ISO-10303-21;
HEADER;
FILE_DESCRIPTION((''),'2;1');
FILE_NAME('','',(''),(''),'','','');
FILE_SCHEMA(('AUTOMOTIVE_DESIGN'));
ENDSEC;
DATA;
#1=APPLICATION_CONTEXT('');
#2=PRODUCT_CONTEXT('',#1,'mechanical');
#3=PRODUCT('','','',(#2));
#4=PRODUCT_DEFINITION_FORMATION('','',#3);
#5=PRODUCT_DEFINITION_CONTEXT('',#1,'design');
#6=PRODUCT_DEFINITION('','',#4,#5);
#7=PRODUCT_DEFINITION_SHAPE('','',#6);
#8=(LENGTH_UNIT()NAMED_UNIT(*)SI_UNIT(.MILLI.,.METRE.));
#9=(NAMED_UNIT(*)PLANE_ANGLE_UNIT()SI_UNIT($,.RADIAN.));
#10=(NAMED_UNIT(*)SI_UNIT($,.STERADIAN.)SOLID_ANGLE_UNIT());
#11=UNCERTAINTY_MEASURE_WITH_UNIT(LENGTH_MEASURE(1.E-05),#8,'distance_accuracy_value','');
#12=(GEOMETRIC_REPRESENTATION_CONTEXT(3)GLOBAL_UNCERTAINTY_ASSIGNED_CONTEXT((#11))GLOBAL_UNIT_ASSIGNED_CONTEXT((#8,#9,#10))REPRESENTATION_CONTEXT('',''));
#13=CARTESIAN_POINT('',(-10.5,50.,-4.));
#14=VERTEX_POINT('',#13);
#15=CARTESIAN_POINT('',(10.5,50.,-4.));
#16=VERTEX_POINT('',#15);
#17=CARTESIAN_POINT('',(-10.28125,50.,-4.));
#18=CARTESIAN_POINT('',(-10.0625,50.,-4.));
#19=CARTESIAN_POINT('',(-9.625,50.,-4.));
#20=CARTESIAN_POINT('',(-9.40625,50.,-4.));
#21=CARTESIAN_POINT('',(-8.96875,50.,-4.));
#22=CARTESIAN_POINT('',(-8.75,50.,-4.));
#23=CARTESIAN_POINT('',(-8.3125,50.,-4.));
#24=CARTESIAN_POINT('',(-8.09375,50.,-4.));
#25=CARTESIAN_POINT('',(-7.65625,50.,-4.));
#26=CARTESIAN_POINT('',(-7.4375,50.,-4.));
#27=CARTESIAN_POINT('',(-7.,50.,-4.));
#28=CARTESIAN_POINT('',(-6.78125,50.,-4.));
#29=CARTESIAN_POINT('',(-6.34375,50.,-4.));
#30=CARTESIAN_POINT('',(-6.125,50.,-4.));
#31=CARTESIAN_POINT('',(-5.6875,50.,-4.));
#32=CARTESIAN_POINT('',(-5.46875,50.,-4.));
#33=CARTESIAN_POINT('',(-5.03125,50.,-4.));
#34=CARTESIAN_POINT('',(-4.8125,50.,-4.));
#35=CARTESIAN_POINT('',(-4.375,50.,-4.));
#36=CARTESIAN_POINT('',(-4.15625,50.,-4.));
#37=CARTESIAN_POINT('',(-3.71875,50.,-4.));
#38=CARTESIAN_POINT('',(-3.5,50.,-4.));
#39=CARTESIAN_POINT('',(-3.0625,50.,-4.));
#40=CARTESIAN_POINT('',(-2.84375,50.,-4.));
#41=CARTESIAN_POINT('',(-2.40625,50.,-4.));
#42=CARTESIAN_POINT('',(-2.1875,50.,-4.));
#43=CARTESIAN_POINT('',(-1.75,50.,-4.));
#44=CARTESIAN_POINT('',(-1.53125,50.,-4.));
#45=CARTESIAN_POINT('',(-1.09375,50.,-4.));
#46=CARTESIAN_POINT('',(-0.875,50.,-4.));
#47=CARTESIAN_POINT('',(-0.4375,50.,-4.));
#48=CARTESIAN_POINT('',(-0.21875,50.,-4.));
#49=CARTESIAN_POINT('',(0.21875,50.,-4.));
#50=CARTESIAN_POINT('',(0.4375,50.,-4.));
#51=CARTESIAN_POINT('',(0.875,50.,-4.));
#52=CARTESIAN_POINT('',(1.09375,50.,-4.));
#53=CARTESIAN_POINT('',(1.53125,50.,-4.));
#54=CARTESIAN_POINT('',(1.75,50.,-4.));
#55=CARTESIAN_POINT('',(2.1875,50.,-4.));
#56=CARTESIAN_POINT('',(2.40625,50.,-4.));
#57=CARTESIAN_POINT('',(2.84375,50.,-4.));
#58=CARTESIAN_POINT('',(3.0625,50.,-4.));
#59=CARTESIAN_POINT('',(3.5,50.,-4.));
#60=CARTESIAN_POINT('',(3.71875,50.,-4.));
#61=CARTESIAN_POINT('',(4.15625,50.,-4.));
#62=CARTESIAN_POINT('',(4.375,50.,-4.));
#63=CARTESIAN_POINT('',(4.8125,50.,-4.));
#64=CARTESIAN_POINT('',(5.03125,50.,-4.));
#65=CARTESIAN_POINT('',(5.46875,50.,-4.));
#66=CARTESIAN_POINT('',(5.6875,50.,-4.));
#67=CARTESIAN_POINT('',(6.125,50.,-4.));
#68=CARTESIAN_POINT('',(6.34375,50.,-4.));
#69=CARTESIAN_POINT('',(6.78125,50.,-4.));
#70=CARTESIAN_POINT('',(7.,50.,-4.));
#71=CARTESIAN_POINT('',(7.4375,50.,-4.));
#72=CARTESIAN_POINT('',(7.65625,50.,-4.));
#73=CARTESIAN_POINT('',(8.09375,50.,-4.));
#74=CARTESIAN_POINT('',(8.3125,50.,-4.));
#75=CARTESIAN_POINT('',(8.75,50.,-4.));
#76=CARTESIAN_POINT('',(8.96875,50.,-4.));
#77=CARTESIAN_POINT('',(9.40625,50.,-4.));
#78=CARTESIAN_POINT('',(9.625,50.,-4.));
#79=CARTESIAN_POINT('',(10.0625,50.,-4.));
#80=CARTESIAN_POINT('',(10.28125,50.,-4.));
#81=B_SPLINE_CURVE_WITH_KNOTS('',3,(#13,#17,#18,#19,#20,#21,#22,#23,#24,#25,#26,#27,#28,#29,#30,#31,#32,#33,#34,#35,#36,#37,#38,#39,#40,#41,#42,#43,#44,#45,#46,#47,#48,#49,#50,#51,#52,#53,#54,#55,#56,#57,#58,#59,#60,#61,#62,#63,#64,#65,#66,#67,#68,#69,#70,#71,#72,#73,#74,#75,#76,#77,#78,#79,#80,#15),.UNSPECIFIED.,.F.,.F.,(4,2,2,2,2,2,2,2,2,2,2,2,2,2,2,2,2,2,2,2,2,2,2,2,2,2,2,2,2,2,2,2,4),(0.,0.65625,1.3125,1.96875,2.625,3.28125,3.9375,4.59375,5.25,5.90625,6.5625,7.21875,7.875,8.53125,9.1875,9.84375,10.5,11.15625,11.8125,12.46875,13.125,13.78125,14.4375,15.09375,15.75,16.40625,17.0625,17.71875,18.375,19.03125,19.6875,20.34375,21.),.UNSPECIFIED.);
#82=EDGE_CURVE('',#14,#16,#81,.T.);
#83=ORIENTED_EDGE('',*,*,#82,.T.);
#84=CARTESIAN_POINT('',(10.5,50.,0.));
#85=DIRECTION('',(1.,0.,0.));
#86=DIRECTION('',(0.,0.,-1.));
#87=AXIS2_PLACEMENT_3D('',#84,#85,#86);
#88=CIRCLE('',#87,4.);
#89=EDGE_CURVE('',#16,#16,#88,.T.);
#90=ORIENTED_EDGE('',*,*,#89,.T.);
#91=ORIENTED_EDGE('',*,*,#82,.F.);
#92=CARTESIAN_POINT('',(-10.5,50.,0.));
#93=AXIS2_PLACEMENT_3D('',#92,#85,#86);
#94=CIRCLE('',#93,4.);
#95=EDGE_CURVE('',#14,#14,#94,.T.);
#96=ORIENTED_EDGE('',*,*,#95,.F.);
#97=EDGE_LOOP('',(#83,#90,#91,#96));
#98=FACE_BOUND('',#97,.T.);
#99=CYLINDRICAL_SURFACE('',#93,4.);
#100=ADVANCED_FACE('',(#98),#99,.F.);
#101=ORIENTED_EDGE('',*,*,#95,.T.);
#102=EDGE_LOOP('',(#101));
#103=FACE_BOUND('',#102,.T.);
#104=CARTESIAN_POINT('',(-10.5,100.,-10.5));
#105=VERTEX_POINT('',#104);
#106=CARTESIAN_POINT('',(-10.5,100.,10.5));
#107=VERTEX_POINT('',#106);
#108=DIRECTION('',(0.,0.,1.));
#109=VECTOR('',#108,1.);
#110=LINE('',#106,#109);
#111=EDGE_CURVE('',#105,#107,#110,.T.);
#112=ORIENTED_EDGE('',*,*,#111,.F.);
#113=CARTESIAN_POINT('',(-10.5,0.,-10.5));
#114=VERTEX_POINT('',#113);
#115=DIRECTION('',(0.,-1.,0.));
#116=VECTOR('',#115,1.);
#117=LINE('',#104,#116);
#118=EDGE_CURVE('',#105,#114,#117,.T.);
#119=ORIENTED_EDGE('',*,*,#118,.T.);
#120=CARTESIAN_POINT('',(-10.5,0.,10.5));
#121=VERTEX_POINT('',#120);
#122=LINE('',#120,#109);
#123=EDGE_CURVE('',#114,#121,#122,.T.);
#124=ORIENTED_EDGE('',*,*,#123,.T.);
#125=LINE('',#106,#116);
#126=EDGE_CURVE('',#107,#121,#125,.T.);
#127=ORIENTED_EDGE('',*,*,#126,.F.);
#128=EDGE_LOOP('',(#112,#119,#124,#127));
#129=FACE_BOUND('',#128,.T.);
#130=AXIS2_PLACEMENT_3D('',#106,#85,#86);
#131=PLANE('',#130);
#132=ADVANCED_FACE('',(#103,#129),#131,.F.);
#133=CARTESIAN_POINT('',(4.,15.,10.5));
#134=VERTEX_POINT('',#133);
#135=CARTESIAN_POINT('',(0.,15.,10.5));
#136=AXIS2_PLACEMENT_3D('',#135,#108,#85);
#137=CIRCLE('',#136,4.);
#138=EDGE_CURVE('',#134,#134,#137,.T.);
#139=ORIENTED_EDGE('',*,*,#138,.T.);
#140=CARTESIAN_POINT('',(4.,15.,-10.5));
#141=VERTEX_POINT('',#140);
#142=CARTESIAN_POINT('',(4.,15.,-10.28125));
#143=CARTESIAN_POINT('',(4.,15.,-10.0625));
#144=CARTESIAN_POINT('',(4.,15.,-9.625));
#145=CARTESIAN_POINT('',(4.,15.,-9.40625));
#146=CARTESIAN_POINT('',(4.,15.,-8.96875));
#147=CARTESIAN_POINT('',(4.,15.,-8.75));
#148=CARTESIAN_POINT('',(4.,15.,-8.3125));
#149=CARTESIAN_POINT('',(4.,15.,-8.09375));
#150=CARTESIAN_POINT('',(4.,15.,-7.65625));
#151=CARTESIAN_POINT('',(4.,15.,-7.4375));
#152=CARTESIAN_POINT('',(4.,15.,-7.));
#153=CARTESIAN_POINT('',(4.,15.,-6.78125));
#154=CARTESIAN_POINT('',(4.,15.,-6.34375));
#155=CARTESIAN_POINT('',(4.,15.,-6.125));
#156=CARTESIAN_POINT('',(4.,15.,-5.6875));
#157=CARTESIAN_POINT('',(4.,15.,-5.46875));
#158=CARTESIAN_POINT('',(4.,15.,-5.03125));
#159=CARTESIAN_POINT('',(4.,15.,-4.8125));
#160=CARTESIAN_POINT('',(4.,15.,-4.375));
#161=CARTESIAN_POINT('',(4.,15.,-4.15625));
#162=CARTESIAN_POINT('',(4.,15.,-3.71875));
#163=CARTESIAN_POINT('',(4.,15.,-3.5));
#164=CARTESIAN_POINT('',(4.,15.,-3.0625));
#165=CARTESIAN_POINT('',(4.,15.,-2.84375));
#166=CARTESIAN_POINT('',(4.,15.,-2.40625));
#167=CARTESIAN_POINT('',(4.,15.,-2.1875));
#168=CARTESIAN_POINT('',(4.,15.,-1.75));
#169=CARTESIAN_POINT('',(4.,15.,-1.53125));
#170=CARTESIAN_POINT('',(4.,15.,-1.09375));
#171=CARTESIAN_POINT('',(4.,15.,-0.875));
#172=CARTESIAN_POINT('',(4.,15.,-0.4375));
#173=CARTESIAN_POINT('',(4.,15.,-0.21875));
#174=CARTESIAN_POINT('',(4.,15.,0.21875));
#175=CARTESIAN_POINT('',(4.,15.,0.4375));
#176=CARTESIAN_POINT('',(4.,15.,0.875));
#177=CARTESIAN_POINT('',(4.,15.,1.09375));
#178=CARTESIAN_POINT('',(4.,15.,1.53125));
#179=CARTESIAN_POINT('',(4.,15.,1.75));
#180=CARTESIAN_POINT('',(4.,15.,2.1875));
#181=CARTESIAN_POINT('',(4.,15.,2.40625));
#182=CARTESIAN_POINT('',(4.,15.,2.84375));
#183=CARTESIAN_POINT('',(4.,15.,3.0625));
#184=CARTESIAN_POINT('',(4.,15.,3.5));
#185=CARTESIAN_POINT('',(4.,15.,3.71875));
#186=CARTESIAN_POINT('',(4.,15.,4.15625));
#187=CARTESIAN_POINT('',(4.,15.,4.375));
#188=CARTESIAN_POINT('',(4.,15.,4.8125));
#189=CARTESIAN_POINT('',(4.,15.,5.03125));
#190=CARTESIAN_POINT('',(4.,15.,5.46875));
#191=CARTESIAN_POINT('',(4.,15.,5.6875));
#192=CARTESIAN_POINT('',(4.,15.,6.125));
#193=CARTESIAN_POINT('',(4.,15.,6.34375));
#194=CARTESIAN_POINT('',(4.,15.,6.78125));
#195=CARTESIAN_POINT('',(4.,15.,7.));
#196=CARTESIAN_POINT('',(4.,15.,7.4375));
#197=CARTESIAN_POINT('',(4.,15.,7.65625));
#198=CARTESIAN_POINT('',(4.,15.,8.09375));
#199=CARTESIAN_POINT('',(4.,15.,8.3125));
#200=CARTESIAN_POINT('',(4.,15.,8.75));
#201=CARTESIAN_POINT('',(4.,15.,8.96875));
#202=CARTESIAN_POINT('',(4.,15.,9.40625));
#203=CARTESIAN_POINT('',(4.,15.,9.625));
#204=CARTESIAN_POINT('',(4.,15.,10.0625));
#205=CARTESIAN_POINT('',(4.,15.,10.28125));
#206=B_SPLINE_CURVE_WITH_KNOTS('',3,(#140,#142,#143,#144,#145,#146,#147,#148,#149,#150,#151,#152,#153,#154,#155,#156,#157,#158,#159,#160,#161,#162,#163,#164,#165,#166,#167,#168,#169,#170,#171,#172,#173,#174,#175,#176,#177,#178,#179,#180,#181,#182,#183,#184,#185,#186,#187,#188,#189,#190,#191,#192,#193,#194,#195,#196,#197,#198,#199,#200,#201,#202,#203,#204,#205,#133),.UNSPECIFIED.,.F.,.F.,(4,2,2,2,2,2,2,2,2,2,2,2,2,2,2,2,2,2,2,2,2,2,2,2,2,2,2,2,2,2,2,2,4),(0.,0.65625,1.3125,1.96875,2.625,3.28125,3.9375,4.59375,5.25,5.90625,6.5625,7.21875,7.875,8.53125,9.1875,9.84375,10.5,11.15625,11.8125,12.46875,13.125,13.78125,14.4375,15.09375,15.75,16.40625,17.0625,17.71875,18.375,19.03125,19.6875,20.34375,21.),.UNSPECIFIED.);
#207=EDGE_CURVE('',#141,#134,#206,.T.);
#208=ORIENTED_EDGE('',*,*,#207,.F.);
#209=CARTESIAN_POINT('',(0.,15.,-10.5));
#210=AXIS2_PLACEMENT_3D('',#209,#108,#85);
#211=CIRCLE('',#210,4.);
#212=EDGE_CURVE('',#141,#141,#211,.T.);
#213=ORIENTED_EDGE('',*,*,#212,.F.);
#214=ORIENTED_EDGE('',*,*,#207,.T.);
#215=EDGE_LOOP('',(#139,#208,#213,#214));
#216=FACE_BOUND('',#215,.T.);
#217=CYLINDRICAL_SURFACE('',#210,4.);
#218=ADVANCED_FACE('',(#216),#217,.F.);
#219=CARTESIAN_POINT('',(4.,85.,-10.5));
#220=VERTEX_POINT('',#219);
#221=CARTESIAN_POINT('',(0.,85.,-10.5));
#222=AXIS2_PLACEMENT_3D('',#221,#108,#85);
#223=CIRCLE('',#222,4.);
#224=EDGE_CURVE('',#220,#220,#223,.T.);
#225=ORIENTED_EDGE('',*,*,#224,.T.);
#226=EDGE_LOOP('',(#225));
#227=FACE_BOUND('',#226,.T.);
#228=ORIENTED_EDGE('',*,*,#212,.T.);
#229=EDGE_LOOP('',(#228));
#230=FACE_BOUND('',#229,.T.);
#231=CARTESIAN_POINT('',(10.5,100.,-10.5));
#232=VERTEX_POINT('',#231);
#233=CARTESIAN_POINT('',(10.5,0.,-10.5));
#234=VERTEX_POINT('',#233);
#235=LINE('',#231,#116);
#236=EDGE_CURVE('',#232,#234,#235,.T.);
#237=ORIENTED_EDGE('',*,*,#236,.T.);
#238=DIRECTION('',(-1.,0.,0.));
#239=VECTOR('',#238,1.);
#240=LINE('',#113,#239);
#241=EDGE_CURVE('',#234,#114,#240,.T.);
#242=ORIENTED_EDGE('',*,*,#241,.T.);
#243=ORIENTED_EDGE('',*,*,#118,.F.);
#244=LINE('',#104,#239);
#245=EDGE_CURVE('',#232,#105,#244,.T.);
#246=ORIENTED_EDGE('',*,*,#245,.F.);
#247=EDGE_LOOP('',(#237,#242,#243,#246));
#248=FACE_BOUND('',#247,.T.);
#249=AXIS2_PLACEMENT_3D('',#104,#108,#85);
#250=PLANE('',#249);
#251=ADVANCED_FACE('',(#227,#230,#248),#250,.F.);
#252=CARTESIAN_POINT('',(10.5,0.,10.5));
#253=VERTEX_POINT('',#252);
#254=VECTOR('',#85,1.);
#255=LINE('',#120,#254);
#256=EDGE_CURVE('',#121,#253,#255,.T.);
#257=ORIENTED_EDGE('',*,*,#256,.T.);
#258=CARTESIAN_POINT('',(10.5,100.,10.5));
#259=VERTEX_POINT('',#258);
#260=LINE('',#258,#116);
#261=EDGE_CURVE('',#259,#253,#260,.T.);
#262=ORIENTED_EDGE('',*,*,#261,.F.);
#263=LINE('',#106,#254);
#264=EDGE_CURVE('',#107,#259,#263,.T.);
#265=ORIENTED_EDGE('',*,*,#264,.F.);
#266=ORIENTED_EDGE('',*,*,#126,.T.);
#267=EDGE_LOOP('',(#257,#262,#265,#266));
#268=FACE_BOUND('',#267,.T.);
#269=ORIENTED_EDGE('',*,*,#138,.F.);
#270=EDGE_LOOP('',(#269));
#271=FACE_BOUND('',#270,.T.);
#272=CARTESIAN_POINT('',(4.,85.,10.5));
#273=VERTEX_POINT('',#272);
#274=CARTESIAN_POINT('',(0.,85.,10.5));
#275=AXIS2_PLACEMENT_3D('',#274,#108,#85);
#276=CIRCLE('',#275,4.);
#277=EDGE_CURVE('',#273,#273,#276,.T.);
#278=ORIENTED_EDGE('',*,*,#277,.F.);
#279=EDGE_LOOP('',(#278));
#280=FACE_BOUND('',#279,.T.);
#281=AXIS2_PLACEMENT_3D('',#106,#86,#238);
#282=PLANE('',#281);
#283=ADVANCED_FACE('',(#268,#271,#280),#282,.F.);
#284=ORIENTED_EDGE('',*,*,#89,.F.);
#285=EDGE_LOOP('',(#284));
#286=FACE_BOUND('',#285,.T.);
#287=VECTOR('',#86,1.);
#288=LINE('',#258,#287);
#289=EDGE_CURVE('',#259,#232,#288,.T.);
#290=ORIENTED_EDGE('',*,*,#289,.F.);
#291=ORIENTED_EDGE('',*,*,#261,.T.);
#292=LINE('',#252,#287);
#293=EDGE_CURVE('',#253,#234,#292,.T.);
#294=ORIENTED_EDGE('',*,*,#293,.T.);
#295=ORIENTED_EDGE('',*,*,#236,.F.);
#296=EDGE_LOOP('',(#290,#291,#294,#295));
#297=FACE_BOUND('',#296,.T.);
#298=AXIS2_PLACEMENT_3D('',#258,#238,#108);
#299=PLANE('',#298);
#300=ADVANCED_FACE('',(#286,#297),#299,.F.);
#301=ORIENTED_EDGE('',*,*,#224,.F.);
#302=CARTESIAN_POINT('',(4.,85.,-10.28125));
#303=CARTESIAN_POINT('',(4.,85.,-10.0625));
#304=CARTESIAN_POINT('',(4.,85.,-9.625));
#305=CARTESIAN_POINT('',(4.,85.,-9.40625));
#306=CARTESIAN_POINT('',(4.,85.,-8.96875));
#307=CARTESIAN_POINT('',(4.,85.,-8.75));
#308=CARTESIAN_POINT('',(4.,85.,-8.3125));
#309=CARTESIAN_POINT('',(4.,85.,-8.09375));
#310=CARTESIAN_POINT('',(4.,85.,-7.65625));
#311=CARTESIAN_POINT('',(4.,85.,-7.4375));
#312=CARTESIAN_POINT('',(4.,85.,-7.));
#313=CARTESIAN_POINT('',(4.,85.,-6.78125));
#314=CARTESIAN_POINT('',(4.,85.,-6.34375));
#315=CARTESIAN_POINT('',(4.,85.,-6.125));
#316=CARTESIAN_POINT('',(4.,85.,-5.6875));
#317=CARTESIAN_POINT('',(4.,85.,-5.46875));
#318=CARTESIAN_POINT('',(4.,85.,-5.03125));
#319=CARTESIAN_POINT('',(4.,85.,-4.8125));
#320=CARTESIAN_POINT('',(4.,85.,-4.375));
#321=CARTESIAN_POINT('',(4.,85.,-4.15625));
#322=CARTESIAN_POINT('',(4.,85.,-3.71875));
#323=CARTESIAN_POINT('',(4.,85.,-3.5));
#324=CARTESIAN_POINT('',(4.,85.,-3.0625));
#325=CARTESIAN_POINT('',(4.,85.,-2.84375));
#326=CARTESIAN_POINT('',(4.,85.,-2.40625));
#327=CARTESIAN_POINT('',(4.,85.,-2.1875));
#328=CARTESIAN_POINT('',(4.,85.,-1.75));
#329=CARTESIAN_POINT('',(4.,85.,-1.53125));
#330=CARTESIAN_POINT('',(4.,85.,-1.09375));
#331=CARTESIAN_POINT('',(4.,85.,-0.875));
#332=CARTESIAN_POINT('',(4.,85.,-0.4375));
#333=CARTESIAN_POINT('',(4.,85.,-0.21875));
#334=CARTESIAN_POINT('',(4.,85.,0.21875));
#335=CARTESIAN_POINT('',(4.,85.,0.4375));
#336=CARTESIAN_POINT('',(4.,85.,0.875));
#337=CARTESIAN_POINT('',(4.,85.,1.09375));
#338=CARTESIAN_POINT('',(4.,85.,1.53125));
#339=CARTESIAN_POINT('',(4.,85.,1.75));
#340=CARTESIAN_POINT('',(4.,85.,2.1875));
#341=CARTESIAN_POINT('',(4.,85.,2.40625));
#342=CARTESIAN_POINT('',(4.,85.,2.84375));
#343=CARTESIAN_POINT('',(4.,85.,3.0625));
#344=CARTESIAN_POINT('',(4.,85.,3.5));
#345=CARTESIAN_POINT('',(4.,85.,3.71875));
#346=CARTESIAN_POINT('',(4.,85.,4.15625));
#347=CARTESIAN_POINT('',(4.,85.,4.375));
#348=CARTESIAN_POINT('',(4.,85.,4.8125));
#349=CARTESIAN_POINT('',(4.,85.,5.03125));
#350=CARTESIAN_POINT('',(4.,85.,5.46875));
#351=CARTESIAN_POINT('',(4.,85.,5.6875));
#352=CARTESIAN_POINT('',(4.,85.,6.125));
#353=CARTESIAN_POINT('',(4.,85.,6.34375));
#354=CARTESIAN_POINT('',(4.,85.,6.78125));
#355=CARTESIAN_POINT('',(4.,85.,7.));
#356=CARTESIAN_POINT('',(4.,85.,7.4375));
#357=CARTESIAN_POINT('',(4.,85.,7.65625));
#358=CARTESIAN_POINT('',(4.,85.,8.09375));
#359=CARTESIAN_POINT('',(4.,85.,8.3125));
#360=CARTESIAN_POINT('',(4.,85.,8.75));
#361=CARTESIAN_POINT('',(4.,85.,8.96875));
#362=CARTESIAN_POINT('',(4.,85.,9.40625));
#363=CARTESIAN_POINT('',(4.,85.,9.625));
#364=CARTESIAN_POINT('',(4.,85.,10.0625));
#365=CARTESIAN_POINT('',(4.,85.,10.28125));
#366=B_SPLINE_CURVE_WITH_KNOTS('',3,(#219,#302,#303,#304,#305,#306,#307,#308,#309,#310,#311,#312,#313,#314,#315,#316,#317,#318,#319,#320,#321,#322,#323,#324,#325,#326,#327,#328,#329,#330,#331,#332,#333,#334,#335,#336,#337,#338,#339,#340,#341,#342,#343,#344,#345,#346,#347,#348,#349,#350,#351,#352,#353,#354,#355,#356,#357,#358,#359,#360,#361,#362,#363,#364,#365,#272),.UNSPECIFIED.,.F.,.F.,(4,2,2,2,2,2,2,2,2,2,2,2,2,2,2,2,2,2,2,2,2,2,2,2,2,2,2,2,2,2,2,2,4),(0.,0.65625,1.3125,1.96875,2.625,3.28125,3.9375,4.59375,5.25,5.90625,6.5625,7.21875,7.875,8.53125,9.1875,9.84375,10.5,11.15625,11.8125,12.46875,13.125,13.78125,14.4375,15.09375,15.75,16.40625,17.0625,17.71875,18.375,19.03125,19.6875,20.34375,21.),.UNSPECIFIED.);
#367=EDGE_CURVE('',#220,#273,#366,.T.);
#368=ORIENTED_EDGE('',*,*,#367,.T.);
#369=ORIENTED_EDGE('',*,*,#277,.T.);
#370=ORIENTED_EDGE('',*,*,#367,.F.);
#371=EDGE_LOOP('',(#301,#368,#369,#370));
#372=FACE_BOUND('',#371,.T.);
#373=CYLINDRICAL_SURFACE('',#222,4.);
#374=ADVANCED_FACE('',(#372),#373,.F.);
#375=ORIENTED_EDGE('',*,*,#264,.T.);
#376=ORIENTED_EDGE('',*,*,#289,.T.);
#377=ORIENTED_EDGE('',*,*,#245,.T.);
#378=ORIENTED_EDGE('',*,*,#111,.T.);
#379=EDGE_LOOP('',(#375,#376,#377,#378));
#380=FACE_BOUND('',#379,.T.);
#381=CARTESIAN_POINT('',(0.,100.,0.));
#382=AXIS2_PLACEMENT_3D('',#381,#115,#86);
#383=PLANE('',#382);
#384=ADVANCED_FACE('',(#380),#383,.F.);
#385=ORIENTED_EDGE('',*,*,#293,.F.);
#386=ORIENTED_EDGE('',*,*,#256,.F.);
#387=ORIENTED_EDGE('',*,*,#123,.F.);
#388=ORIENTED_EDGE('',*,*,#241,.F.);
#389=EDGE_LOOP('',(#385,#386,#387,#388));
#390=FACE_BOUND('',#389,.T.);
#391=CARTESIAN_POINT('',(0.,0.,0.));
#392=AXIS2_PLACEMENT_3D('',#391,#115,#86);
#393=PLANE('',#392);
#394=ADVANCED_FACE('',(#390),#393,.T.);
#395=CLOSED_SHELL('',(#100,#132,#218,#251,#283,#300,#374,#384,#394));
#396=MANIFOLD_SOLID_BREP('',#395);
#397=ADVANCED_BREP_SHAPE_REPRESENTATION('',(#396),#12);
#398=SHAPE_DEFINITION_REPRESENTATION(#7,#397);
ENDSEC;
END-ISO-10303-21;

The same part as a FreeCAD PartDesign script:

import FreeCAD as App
import Part
import Sketcher
from FreeCAD import Vector
Q = App.Units.Quantity


def add_polygon(sketch, points):
    """Adds a closed chain of lines whose ends are joined by coincident constraints."""
    first, n = sketch.GeometryCount, len(points)
    for a, b in zip(points, points[1:] + points[:1]):
        sketch.addGeometry(Part.LineSegment(App.Vector(*a, 0), App.Vector(*b, 0)), False)
    for i in range(n):
        sketch.addConstraint(Sketcher.Constraint("Coincident", first + i, 2, first + (i + 1) % n, 1))

doc = App.newDocument("Part")
body = doc.addObject("PartDesign::Body", "Body")

# Sketch on XZ plane
sketch1 = doc.addObject("Sketcher::SketchObject", "Sketch")
body.addObject(sketch1)
sketch1.AttachmentSupport = (doc.XZ_Plane, [""])
sketch1.MapMode = "FlatFace"
add_polygon(sketch1, [(-10, -10), (-10, 10), (10, 10), (10, -10)])  # lines 0-3
sketch1.addConstraint(Sketcher.Constraint("Vertical", 0))
sketch1.addConstraint(Sketcher.Constraint("Horizontal", 1))
sketch1.addConstraint(Sketcher.Constraint("Vertical", 2))
sketch1.addConstraint(Sketcher.Constraint("Horizontal", 3))
sketch1.addConstraint(Sketcher.Constraint("Symmetric", 0, 2, 2, 2, -1, 1))
sketch1.addConstraint(Sketcher.Constraint("Equal", 3, 0))
sketch1.addConstraint(Sketcher.Constraint("DistanceX", 1, 1, 1, 2, Q("21 mm")))
pad1 = doc.addObject("PartDesign::Pad", "Pad")
body.addObject(pad1)
pad1.Profile = sketch1
pad1.Length = 100
pad1.Reversed = True

# Sketch on XY plane
sketch2 = doc.addObject("Sketcher::SketchObject", "Sketch001")
body.addObject(sketch2)
sketch2.AttachmentSupport = (doc.XY_Plane, [""])
sketch2.MapMode = "FlatFace"
sketch2.AttachmentOffset = App.Placement(Vector(0, 0, 10.5), App.Rotation())
sketch2.addGeometry(Part.Circle(Vector(0, 85, 0), Vector(0, 0, 1), 4), False)
sketch2.addGeometry(Part.Circle(Vector(0, 15, 0), Vector(0, 0, 1), 4), False)
sketch2.addConstraint(Sketcher.Constraint("Equal", 0, 1))
sketch2.addConstraint(Sketcher.Constraint("PointOnObject", 0, 3, -2))
sketch2.addConstraint(Sketcher.Constraint("PointOnObject", 1, 3, -2))
sketch2.addConstraint(Sketcher.Constraint("Diameter", 0, Q("8 mm")))
sketch2.addConstraint(Sketcher.Constraint("DistanceY", -1, 1, 0, 3, Q("85 mm")))
sketch2.addConstraint(Sketcher.Constraint("DistanceY", -1, 1, 1, 3, Q("15 mm")))
pocket1 = doc.addObject("PartDesign::Pocket", "Pocket")
body.addObject(pocket1)
pocket1.Profile = sketch2
pocket1.Type = "ThroughAll"

# Sketch on YZ plane
sketch3 = doc.addObject("Sketcher::SketchObject", "Sketch002")
body.addObject(sketch3)
sketch3.AttachmentSupport = (doc.YZ_Plane, [""])
sketch3.MapMode = "FlatFace"
sketch3.AttachmentOffset = App.Placement(Vector(0, 0, 10.5), App.Rotation())
sketch3.addGeometry(Part.Circle(Vector(50, 0, 0), Vector(0, 0, 1), 4), False)
sketch3.addConstraint(Sketcher.Constraint("PointOnObject", 0, 3, -1))
sketch3.addConstraint(Sketcher.Constraint("Diameter", 0, Q("8 mm")))
sketch3.addConstraint(Sketcher.Constraint("DistanceX", -1, 1, 0, 3, Q("50 mm")))
pocket2 = doc.addObject("PartDesign::Pocket", "Pocket001")
body.addObject(pocket2)
pocket2.Profile = sketch3
pocket2.Type = "ThroughAll"

doc.recompute()
